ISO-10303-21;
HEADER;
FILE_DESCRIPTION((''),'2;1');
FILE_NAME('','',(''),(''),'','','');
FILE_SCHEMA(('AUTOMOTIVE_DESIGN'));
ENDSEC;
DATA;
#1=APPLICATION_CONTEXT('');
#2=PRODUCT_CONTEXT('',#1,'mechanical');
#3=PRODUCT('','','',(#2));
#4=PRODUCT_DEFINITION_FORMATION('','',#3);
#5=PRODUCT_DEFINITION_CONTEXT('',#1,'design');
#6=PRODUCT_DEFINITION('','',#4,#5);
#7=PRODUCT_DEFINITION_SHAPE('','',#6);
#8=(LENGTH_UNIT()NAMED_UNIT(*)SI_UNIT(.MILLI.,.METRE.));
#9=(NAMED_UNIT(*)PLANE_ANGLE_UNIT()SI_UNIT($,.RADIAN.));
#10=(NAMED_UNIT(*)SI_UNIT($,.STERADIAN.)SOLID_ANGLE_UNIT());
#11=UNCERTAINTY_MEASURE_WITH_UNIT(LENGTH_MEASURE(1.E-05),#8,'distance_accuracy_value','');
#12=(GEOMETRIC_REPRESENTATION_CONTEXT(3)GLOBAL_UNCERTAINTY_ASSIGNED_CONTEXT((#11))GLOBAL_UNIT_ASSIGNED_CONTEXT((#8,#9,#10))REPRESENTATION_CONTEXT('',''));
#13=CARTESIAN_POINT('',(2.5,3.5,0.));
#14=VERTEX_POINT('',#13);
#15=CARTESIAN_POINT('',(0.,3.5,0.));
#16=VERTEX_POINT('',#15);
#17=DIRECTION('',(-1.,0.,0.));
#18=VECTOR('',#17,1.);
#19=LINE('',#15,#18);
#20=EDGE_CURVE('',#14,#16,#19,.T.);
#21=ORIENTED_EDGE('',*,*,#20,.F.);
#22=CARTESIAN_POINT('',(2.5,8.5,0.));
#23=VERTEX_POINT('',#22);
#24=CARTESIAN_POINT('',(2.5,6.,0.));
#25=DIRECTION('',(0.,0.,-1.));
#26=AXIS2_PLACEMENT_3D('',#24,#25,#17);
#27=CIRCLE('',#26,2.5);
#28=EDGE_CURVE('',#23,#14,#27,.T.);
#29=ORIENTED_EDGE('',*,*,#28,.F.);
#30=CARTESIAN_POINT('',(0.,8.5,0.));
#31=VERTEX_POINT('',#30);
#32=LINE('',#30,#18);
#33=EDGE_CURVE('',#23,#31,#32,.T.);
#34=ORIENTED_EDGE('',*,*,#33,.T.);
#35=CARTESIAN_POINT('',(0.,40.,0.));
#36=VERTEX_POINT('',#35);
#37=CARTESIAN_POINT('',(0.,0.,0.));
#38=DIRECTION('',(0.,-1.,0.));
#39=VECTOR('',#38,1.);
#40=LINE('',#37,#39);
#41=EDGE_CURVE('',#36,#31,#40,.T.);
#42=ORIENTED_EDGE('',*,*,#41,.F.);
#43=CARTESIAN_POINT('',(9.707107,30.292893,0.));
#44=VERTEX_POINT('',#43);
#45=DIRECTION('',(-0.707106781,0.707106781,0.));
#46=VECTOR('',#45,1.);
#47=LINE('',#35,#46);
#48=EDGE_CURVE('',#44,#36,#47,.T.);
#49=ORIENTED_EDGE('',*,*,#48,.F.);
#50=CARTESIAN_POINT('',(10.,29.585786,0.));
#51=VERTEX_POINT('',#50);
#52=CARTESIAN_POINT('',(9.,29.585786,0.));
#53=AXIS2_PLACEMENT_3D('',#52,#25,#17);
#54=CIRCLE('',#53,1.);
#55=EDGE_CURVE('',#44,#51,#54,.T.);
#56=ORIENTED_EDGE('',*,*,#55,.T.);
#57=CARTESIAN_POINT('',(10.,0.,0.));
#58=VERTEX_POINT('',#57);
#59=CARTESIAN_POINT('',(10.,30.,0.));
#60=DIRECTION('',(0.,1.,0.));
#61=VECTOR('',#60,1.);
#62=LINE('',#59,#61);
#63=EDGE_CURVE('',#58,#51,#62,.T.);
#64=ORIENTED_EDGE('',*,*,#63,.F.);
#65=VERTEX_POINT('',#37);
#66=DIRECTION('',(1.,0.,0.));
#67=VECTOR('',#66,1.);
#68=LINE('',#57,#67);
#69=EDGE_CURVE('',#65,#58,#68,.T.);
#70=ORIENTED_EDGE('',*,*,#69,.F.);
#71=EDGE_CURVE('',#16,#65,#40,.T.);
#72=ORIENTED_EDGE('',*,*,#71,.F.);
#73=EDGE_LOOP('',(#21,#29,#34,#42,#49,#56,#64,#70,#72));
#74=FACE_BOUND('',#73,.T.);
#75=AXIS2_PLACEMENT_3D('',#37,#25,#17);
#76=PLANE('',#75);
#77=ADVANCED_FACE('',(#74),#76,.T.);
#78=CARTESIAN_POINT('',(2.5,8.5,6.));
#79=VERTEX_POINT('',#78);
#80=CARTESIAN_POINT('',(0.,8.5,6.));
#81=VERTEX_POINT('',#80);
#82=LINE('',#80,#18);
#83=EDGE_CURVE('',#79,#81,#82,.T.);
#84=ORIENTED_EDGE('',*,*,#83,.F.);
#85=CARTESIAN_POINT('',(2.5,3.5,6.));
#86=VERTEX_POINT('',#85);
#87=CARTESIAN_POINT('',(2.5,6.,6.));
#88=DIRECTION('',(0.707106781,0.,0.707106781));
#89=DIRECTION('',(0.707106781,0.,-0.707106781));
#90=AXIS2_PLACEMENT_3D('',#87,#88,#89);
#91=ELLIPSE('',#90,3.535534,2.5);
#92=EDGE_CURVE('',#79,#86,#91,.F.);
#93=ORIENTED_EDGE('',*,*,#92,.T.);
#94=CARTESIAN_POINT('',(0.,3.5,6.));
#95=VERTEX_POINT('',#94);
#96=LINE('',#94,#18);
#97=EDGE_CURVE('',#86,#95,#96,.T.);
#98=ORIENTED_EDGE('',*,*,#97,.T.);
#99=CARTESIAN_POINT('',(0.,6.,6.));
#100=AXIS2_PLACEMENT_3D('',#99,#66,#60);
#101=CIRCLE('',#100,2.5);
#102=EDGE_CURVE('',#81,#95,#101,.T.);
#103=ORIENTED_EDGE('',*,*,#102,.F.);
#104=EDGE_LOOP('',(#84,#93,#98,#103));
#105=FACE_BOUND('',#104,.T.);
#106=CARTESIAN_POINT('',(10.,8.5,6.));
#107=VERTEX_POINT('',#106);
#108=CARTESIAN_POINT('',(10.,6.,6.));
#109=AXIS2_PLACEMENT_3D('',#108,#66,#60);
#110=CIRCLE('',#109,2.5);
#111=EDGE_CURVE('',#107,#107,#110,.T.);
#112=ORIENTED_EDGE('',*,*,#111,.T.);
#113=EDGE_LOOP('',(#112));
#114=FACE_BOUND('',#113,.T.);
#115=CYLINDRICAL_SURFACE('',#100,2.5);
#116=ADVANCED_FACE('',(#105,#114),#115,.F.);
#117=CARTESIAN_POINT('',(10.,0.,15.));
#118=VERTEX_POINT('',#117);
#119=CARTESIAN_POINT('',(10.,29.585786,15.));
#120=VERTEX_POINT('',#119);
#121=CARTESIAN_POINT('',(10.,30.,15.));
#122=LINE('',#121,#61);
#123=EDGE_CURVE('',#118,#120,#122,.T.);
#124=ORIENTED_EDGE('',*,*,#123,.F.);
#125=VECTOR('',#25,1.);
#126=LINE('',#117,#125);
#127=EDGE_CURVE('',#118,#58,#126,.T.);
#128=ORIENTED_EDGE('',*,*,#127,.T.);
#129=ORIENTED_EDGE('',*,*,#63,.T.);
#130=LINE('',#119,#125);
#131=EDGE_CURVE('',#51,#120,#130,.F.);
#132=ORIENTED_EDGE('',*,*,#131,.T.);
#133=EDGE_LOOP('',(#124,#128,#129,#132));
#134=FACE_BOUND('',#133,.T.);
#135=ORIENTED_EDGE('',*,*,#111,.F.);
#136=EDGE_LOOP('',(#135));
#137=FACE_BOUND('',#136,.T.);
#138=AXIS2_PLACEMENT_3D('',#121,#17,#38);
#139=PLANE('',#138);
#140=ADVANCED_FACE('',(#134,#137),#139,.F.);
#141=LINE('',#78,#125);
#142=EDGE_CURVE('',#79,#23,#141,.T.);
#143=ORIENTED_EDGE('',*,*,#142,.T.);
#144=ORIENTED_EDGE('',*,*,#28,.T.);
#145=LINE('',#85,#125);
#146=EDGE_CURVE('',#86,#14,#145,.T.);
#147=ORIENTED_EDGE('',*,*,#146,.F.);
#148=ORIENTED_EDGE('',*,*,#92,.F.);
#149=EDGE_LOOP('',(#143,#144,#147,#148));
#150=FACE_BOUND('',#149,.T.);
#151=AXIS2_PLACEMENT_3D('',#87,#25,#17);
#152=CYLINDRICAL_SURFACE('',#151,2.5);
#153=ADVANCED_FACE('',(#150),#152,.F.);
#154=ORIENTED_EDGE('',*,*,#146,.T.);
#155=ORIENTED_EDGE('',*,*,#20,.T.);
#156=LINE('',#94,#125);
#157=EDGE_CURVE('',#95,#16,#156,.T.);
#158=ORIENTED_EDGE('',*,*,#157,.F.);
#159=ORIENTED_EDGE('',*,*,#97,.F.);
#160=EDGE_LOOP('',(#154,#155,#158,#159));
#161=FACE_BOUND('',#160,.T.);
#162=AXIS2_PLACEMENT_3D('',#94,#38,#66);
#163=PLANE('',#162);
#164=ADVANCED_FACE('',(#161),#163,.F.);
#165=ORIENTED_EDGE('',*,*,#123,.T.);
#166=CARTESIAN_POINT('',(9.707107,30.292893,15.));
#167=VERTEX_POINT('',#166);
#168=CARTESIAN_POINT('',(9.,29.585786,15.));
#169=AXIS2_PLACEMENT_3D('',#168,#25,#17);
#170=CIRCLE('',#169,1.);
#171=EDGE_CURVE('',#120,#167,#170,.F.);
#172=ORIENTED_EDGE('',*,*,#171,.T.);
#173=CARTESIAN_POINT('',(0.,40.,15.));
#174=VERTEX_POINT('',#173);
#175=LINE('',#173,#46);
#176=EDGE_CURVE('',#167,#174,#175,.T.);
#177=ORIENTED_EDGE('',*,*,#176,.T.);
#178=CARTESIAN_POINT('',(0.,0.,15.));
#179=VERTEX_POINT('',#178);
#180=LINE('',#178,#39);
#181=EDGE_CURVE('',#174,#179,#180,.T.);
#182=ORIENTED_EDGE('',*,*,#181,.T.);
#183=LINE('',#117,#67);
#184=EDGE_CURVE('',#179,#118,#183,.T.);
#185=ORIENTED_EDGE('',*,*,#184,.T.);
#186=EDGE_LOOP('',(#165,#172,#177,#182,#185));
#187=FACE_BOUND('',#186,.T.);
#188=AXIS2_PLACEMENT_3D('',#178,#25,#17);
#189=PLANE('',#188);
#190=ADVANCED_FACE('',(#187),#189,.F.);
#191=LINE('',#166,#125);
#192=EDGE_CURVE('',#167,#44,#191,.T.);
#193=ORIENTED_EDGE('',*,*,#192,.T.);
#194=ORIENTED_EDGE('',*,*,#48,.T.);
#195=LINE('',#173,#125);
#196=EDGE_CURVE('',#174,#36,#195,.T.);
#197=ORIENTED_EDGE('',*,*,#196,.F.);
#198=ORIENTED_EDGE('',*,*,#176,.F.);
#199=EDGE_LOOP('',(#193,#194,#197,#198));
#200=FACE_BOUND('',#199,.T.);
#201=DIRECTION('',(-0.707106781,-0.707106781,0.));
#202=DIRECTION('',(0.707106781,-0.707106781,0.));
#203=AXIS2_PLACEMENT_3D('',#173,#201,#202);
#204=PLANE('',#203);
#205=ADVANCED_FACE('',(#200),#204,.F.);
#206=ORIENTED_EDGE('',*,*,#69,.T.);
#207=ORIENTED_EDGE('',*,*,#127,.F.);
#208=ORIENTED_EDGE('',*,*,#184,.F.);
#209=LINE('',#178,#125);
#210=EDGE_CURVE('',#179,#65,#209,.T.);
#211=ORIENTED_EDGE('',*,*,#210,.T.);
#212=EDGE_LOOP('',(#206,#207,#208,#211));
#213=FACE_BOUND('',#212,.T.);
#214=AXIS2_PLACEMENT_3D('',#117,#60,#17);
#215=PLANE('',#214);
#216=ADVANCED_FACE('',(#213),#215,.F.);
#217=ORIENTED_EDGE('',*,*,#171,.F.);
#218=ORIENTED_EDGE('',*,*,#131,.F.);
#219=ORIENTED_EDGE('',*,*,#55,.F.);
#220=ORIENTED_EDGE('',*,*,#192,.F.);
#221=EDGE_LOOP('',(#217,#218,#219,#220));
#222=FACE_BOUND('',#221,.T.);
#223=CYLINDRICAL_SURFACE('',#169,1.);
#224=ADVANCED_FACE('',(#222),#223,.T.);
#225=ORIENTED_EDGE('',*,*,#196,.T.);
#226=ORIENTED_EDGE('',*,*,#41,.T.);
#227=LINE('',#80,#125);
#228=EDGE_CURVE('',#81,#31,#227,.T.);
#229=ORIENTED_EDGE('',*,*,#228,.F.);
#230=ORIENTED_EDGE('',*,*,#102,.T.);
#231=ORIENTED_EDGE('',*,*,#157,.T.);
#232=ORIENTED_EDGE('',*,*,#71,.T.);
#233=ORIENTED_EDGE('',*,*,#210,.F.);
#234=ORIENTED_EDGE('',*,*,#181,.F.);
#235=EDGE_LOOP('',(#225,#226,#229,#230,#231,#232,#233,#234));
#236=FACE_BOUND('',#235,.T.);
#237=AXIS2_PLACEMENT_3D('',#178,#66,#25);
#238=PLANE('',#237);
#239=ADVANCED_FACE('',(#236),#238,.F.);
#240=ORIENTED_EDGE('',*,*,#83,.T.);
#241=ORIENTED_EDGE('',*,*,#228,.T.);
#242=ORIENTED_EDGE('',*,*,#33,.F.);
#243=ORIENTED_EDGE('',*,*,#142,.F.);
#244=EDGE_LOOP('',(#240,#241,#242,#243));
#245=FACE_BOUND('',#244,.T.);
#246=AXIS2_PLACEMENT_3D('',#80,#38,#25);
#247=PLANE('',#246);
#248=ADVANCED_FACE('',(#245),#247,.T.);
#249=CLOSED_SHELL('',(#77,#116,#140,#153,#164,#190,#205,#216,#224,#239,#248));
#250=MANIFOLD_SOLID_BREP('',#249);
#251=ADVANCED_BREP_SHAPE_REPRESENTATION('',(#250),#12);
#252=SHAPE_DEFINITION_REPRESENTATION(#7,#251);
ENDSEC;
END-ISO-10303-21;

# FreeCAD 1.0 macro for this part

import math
import FreeCAD as App
import Part
import Sketcher

V = App.Vector
Q = App.Units.Quantity


def edges_at(feature, points):
    """Names of the edges that pass closest to the given points."""
    edges = feature.Shape.Edges
    near = lambda p: min(range(len(edges)), key=lambda i: edges[i].distToShape(Part.Vertex(*p))[0])
    return sorted({f"Edge{near(p) + 1}" for p in points})


def add_polygon(sketch, points):
    """Adds a closed chain of lines whose ends are joined by coincident constraints."""
    first, n = sketch.GeometryCount, len(points)
    for a, b in zip(points, points[1:] + points[:1]):
        sketch.addGeometry(Part.LineSegment(App.Vector(*a, 0), App.Vector(*b, 0)), False)
    for i in range(n):
        sketch.addConstraint(Sketcher.Constraint("Coincident", first + i, 2, first + (i + 1) % n, 1))

doc = App.newDocument("Part")
params = doc.addObject("Spreadsheet::Sheet", "Params")
for row, (alias, value) in enumerate([
    ("sketch1_width", "10 mm"),
    ("sketch1_height", "40 mm"),
    ("sketch1_height2", "30 mm"),
    ("pad1_length", "15 mm"),
    ("sketch2_diameter", "5 mm"),
    ("sketch3_radius", "2.5 mm"),
    ("sketch3_width", "2.5 mm"),
    ("pocket2_length", "6 mm"),
    ("fillet_radius", "1 mm"),
], start=1):
    params.set(f"A{row}", alias)
    params.set(f"B{row}", "=" + value)
    params.setAlias(f"B{row}", alias)

body = doc.addObject("PartDesign::Body", "Body")

# Sketch on XY plane
sketch1 = body.newObject("Sketcher::SketchObject", "Sketch")
sketch1.AttachmentSupport = (doc.getObject("XY_Plane"), [""])
sketch1.MapMode = "FlatFace"
add_polygon(sketch1, [(0, 40), (0, 0), (10, 0), (10, 30)])  # lines 0-3
sketch1.addConstraint([
    Sketcher.Constraint("Vertical", 0),
    Sketcher.Constraint("Horizontal", 1),
    Sketcher.Constraint("Vertical", 2),
    Sketcher.Constraint("Coincident", 0, 2, -1, 1),
    Sketcher.Constraint("DistanceX", 1, 1, 1, 2, Q("10 mm")),
    Sketcher.Constraint("DistanceY", 0, 2, 0, 1, Q("40 mm")),
    Sketcher.Constraint("DistanceY", 2, 1, 2, 2, Q("30 mm")),
])
sketch1.setExpression("Constraints[8]", "Params.sketch1_width")
sketch1.setExpression("Constraints[9]", "Params.sketch1_height")
sketch1.setExpression("Constraints[10]", "Params.sketch1_height2")
pad1 = body.newObject("PartDesign::Pad", "Pad")
pad1.Profile = sketch1
pad1.setExpression("Length", "Params.pad1_length")

# Sketch on YZ plane
sketch2 = body.newObject("Sketcher::SketchObject", "Sketch001")
sketch2.AttachmentSupport = (doc.getObject("YZ_Plane"), [""])
sketch2.MapMode = "FlatFace"
sketch2.AttachmentOffset = App.Placement(V(0, 0, 10), App.Rotation())
sketch2.addGeometry(Part.Circle(V(6, 6, 0), V(0, 0, 1), 2.5), False)
sketch2.addConstraint([
    Sketcher.Constraint("Diameter", 0, Q("5 mm")),
    Sketcher.Constraint("DistanceX", -1, 1, 0, 3, Q("6 mm")),
    Sketcher.Constraint("DistanceY", -1, 1, 0, 3, Q("6 mm")),
])
sketch2.setExpression("Constraints[0]", "Params.sketch2_diameter")
pocket1 = body.newObject("PartDesign::Pocket", "Pocket")
pocket1.Profile = sketch2
pocket1.Type = "ThroughAll"

# Sketch on XY plane
sketch3 = body.newObject("Sketcher::SketchObject", "Sketch002")
sketch3.AttachmentSupport = (doc.getObject("XY_Plane"), [""])
sketch3.MapMode = "FlatFace"
sketch3.addGeometry([
    Part.ArcOfCircle(Part.Circle(V(2.5, 6, 0), V(0, 0, 1), 2.5), math.radians(-90), math.radians(90)),
    Part.LineSegment(V(2.5, 3.5, 0), V(0, 3.5, 0)),
    Part.LineSegment(V(0, 3.5, 0), V(0, 8.5, 0)),
    Part.LineSegment(V(0, 8.5, 0), V(2.5, 8.5, 0)),
], False)
sketch3.addConstraint([
    Sketcher.Constraint("Tangent", 0, 1, 1, 1),
    Sketcher.Constraint("Coincident", 1, 2, 2, 1),
    Sketcher.Constraint("Coincident", 2, 2, 3, 1),
    Sketcher.Constraint("Tangent", 3, 2, 0, 2),
    Sketcher.Constraint("Horizontal", 1),
    Sketcher.Constraint("Vertical", 2),
    Sketcher.Constraint("Horizontal", 3),
    Sketcher.Constraint("PointOnObject", 1, 2, -2),
    Sketcher.Constraint("Radius", 0, Q("2.5 mm")),
    Sketcher.Constraint("DistanceX", 1, 2, 1, 1, Q("2.5 mm")),
    Sketcher.Constraint("DistanceY", -1, 1, 0, 3, Q("6 mm")),
])
sketch3.setExpression("Constraints[8]", "Params.sketch3_radius")
sketch3.setExpression("Constraints[9]", "Params.sketch3_width")
pocket2 = body.newObject("PartDesign::Pocket", "Pocket001")
pocket2.Profile = sketch3
pocket2.setExpression("Length", "Params.pocket2_length")
pocket2.Reversed = True
doc.recompute()

fillet = body.newObject("PartDesign::Fillet", "Fillet")
fillet.Base = (pocket2, edges_at(pocket2, [(10, 30, 7.5)]))
fillet.setExpression("Radius", "Params.fillet_radius")

doc.recompute()
